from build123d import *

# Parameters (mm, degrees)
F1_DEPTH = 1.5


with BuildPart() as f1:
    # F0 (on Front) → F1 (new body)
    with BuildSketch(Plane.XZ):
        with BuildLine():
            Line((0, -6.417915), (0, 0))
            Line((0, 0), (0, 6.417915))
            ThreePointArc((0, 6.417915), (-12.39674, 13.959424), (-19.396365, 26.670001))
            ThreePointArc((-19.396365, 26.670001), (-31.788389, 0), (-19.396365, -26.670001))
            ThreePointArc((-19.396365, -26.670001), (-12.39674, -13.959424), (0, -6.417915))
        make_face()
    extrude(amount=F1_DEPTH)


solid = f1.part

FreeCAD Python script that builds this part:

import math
import FreeCAD as App
import Part
import Sketcher
Q = App.Units.Quantity

doc = App.newDocument("Part")
params = doc.addObject("Spreadsheet::Sheet", "Params")
for row, (alias, value) in enumerate([
    ("pad1_length", "1.5 mm"),
], start=1):
    params.set(f"A{row}", alias)
    params.set(f"B{row}", "=" + value)
    params.setAlias(f"B{row}", alias)

body = doc.addObject("PartDesign::Body", "Body")

# Sketch on XZ plane
sketch1 = body.newObject("Sketcher::SketchObject", "Sketch")
sketch1.AttachmentSupport = (doc.getObject("XZ_Plane"), [""])
sketch1.MapMode = "FlatFace"
sketch1.addGeometry([
    Part.LineSegment(App.Vector(0, -6, 0), App.Vector(0, 6, 0)),
    Part.ArcOfCircle(Part.Circle(App.Vector(8, 33, 0), App.Vector(0, 0, 1), 28), math.radians(-166), math.radians(-106)),
    Part.ArcOfCircle(Part.Circle(App.Vector(3, 0, 0), App.Vector(0, 0, 1), 35), math.radians(130), math.radians(230)),
    Part.ArcOfCircle(Part.Circle(App.Vector(8, -33, 0), App.Vector(0, 0, 1), 28), math.radians(106), math.radians(166)),
], False)
sketch1.addConstraint([
    Sketcher.Constraint("Coincident", 0, 2, 1, 2),
    Sketcher.Constraint("Coincident", 1, 1, 2, 1),
    Sketcher.Constraint("Coincident", 2, 2, 3, 2),
    Sketcher.Constraint("Coincident", 3, 1, 0, 1),
    Sketcher.Constraint("Vertical", 0),
    Sketcher.Constraint("Equal", 1, 3),
    Sketcher.Constraint("Symmetric", 0, 2, 3, 1, -1, 1),
    Sketcher.Constraint("Symmetric", 1, 1, 2, 2, -1),
    Sketcher.Constraint("DistanceY", -1, 1, 1, 1, Q("26.670001 mm")),
    Sketcher.Constraint("Radius", 1, Q("28.174632 mm")),
    Sketcher.Constraint("Radius", 2, Q("34.895478 mm")),
    Sketcher.Constraint("DistanceY", 0, 1, 0, 2, Q("12.83583 mm")),
    Sketcher.Constraint("DistanceX", -1, 1, 2, 3, Q("3.107089 mm")),
])
pad1 = body.newObject("PartDesign::Pad", "Pad")
pad1.Profile = sketch1
pad1.setExpression("Length", "Params.pad1_length")

doc.recompute()
